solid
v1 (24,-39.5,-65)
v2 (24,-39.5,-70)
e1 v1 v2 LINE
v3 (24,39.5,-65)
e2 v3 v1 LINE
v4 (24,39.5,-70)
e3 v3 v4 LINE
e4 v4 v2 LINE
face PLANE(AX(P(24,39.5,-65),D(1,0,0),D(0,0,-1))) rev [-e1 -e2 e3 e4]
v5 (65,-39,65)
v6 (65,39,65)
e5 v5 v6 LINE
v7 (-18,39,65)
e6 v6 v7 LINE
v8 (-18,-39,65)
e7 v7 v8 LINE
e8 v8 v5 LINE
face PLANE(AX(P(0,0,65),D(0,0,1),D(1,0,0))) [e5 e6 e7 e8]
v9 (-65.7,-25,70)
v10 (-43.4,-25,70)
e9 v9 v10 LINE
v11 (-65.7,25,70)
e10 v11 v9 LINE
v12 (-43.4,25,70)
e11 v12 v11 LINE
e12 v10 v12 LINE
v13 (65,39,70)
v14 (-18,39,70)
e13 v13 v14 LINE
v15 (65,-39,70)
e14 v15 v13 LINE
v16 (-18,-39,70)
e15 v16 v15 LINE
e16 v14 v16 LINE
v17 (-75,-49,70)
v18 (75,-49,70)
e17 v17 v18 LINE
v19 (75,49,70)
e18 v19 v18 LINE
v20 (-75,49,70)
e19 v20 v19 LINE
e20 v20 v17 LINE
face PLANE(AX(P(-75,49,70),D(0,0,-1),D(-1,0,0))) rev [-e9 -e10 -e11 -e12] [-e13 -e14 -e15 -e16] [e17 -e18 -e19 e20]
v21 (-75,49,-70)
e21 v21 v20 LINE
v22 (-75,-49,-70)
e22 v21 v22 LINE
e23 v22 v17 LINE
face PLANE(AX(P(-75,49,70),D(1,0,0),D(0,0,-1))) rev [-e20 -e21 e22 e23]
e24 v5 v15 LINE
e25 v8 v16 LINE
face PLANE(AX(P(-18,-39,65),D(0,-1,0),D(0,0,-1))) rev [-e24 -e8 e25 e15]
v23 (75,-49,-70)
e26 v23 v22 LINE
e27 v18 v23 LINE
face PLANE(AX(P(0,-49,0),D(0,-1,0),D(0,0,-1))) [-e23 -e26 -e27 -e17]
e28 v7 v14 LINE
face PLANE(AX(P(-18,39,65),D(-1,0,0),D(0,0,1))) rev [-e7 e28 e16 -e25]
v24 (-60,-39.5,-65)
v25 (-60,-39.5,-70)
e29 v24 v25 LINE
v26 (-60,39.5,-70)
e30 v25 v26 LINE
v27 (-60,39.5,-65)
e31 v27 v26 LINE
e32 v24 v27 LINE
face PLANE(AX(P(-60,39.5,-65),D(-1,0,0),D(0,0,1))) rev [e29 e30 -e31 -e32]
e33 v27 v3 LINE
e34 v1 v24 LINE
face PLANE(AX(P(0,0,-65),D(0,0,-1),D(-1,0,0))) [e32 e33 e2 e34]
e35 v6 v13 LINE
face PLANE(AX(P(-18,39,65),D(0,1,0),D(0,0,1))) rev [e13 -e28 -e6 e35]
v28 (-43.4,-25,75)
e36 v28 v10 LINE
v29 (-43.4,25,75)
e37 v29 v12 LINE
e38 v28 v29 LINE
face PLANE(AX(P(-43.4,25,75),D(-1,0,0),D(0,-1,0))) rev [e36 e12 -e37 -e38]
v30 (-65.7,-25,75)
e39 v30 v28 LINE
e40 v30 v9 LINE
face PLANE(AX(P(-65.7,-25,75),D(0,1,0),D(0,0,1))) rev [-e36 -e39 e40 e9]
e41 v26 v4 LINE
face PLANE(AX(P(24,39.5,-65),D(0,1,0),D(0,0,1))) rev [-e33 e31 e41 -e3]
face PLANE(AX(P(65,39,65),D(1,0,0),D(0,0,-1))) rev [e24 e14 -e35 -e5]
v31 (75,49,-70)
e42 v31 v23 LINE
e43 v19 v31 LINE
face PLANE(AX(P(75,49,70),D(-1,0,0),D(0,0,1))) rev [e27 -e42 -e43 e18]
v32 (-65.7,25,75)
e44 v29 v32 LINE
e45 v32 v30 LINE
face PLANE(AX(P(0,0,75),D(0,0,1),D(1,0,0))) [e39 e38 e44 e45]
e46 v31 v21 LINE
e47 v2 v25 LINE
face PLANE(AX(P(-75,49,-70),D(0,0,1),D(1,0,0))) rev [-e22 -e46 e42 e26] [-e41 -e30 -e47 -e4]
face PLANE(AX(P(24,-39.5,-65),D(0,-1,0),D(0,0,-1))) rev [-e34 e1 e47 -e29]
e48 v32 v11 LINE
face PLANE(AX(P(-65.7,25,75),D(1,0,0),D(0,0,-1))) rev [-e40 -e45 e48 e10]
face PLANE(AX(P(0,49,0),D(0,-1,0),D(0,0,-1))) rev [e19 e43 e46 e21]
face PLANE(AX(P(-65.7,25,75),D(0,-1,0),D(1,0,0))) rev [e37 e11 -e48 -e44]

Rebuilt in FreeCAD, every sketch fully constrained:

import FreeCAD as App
import Part
import Sketcher


def add_polygon(sketch, points):
    """Adds a closed chain of lines whose ends are joined by coincident constraints."""
    first, n = sketch.GeometryCount, len(points)
    for a, b in zip(points, points[1:] + points[:1]):
        sketch.addGeometry(Part.LineSegment(App.Vector(*a, 0), App.Vector(*b, 0)), False)
    for i in range(n):
        sketch.addConstraint(Sketcher.Constraint("Coincident", first + i, 2, first + (i + 1) % n, 1))

doc = App.newDocument("Part")
body = doc.addObject("PartDesign::Body", "Body")

# Sketch on XZ plane
sketch1 = body.newObject("Sketcher::SketchObject", "Sketch")
sketch1.AttachmentSupport = (doc.getObject("XZ_Plane"), [""])
sketch1.MapMode = "FlatFace"
add_polygon(sketch1, [(-75, -70), (-75, 70), (75, 70), (75, -70)])  # lines 0-3
sketch1.addConstraint([
    Sketcher.Constraint("Vertical", 0),
    Sketcher.Constraint("Horizontal", 1),
    Sketcher.Constraint("Vertical", 2),
    Sketcher.Constraint("Horizontal", 3),
    Sketcher.Constraint("Symmetric", 0, 2, 2, 2, -1, 1),
    Sketcher.Constraint("DistanceX", 1, 1, 1, 2, 150.0),
    Sketcher.Constraint("DistanceY", 0, 1, 0, 2, 140.0),
])
pad1 = body.newObject("PartDesign::Pad", "Pad")
pad1.Profile = sketch1
pad1.Length = 98
pad1.Midplane = True

# Sketch on XY plane
sketch2 = body.newObject("Sketcher::SketchObject", "Sketch001")
sketch2.AttachmentSupport = (doc.getObject("XY_Plane"), [""])
sketch2.MapMode = "FlatFace"
sketch2.AttachmentOffset = App.Placement(App.Vector(0, 0, 70), App.Rotation())
add_polygon(sketch2, [(-18, 39), (-18, -39), (65, -39), (65, 39)])  # lines 0-3
sketch2.addConstraint([
    Sketcher.Constraint("Vertical", 0),
    Sketcher.Constraint("Horizontal", 1),
    Sketcher.Constraint("Vertical", 2),
    Sketcher.Constraint("Horizontal", 3),
    Sketcher.Constraint("DistanceX", 1, 1, 1, 2, 83.0),
    Sketcher.Constraint("DistanceY", 0, 2, 0, 1, 78.0),
    Sketcher.Constraint("DistanceX", 0, 2, -1, 1, 18.0),
    Sketcher.Constraint("DistanceY", 0, 2, -1, 1, 39.0),
])
pocket1 = body.newObject("PartDesign::Pocket", "Pocket")
pocket1.Profile = sketch2
pocket1.Length = 5

# Sketch on XY plane
sketch3 = body.newObject("Sketcher::SketchObject", "Sketch002")
sketch3.AttachmentSupport = (doc.getObject("XY_Plane"), [""])
sketch3.MapMode = "FlatFace"
sketch3.AttachmentOffset = App.Placement(App.Vector(0, 0, 70), App.Rotation())
add_polygon(sketch3, [(-66, 25), (-66, -25), (-43, -25), (-43, 25)])  # lines 0-3
sketch3.addConstraint([
    Sketcher.Constraint("Vertical", 0),
    Sketcher.Constraint("Horizontal", 1),
    Sketcher.Constraint("Vertical", 2),
    Sketcher.Constraint("Horizontal", 3),
    Sketcher.Constraint("DistanceY", 0, 2, 0, 1, 50.0),
    Sketcher.Constraint("DistanceX", 1, 1, 1, 2, 22.3),
    Sketcher.Constraint("DistanceY", 0, 2, -1, 1, 25.0),
    Sketcher.Constraint("DistanceX", 0, 2, -1, 1, 65.7),
])
pad2 = body.newObject("PartDesign::Pad", "Pad001")
pad2.Profile = sketch3
pad2.Length = 5

# Sketch on XY plane
sketch4 = body.newObject("Sketcher::SketchObject", "Sketch003")
sketch4.AttachmentSupport = (doc.getObject("XY_Plane"), [""])
sketch4.MapMode = "FlatFace"
sketch4.AttachmentOffset = App.Placement(App.Vector(0, 0, -70), App.Rotation())
add_polygon(sketch4, [(24, 40), (24, -40), (-60, -40), (-60, 40)])  # lines 0-3
sketch4.addConstraint([
    Sketcher.Constraint("Vertical", 0),
    Sketcher.Constraint("Horizontal", 1),
    Sketcher.Constraint("Vertical", 2),
    Sketcher.Constraint("Horizontal", 3),
    Sketcher.Constraint("DistanceX", 1, 2, 1, 1, 84.0),
    Sketcher.Constraint("DistanceY", 0, 2, 0, 1, 79.0),
    Sketcher.Constraint("DistanceX", -1, 1, 0, 2, 24.0),
    Sketcher.Constraint("DistanceY", 0, 2, -1, 1, 39.5),
])
pocket2 = body.newObject("PartDesign::Pocket", "Pocket001")
pocket2.Profile = sketch4
pocket2.Length = 5
pocket2.Reversed = True

doc.recompute()
